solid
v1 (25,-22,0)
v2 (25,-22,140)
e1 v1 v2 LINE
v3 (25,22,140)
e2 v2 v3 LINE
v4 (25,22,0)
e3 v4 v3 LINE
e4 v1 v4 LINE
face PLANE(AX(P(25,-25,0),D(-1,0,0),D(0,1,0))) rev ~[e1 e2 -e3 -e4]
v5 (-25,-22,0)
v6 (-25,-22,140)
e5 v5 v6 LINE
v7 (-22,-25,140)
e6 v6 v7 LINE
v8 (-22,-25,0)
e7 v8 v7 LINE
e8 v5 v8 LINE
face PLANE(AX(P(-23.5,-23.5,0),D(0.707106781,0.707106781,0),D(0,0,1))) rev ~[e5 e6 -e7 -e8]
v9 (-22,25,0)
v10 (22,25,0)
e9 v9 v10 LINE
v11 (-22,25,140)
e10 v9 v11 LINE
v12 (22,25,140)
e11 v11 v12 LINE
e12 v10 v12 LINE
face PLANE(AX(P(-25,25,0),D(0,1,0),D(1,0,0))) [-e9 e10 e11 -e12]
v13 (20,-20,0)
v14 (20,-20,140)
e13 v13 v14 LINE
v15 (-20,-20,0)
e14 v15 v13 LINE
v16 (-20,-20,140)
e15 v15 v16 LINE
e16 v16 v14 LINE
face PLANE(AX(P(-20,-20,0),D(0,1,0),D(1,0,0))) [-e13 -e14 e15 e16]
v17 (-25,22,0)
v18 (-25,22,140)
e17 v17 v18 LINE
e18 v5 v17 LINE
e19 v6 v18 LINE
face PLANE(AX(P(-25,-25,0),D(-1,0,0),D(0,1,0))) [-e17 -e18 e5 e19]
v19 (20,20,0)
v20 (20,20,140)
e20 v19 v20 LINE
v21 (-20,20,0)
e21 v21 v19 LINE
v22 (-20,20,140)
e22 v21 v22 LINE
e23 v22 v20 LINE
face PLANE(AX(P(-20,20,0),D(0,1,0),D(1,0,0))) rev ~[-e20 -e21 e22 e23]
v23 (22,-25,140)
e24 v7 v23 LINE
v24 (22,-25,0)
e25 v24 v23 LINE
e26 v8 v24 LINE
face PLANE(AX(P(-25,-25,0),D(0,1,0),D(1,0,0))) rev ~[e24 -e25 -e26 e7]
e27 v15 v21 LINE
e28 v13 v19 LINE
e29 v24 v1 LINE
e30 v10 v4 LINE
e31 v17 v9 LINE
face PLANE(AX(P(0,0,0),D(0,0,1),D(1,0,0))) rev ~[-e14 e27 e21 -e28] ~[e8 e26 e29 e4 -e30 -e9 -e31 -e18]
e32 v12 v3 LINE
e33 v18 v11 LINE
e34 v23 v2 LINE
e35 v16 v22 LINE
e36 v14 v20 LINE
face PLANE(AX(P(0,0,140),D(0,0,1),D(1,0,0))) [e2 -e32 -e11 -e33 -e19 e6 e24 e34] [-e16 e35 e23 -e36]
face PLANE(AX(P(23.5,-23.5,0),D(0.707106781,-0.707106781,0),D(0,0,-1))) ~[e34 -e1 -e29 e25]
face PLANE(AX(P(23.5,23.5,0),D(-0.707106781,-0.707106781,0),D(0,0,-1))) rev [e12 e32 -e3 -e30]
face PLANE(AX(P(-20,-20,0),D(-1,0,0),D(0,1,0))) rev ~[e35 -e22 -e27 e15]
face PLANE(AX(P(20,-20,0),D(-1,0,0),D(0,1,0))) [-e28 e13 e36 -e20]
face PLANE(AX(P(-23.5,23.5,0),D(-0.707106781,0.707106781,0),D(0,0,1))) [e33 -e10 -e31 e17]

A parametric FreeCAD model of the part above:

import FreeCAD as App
import Part
import Sketcher
from FreeCAD import Vector
Q = App.Units.Quantity


def edges_at(feature, points):
    """Names of the edges that pass closest to the given points."""
    edges = feature.Shape.Edges
    near = lambda p: min(range(len(edges)), key=lambda i: edges[i].distToShape(Part.Vertex(*p))[0])
    return sorted({f"Edge{near(p) + 1}" for p in points})


def add_polygon(sketch, points):
    """Adds a closed chain of lines whose ends are joined by coincident constraints."""
    first, n = sketch.GeometryCount, len(points)
    for a, b in zip(points, points[1:] + points[:1]):
        sketch.addGeometry(Part.LineSegment(App.Vector(*a, 0), App.Vector(*b, 0)), False)
    for i in range(n):
        sketch.addConstraint(Sketcher.Constraint("Coincident", first + i, 2, first + (i + 1) % n, 1))

doc = App.newDocument("Part")
body = doc.addObject("PartDesign::Body", "Body")

sketch1 = body.newObject("Sketcher::SketchObject", "Sketch")
sketch1.AttachmentSupport = (doc.getObject("XY_Plane"), [""])
sketch1.MapMode = "FlatFace"
add_polygon(sketch1, [(-25, 25), (-25, -25), (25, -25), (25, 25)])
add_polygon(sketch1, [(20, -20), (-20, -20), (-20, 20), (20, 20)])
sketch1.addConstraint(Sketcher.Constraint("Vertical", 0))
sketch1.addConstraint(Sketcher.Constraint("Horizontal", 1))
sketch1.addConstraint(Sketcher.Constraint("Vertical", 2))
sketch1.addConstraint(Sketcher.Constraint("Horizontal", 3))
sketch1.addConstraint(Sketcher.Constraint("Horizontal", 4))
sketch1.addConstraint(Sketcher.Constraint("Vertical", 5))
sketch1.addConstraint(Sketcher.Constraint("Horizontal", 6))
sketch1.addConstraint(Sketcher.Constraint("Vertical", 7))
sketch1.addConstraint(Sketcher.Constraint("Symmetric", 0, 2, 2, 2, -1, 1))
sketch1.addConstraint(Sketcher.Constraint("Symmetric", 4, 2, 6, 2, -1, 1))
sketch1.addConstraint(Sketcher.Constraint("Equal", 3, 0))
sketch1.addConstraint(Sketcher.Constraint("Equal", 6, 5))
sketch1.addConstraint(Sketcher.Constraint("DistanceX", 1, 1, 1, 2, Q("50 mm")))
sketch1.addConstraint(Sketcher.Constraint("DistanceX", 4, 2, 4, 1, Q("40 mm")))
pad1 = body.newObject("PartDesign::Pad", "Pad")
pad1.Profile = sketch1
pad1.Length = 140
doc.recompute()

chamfer = body.newObject("PartDesign::Chamfer", "Chamfer")
chamfer.Base = (pad1, edges_at(pad1, [
    (25, -25, 70),
    (-25, -25, 70),
    (25, 25, 70),
    (-25, 25, 70),
]))
chamfer.Size = 3

doc.recompute()
